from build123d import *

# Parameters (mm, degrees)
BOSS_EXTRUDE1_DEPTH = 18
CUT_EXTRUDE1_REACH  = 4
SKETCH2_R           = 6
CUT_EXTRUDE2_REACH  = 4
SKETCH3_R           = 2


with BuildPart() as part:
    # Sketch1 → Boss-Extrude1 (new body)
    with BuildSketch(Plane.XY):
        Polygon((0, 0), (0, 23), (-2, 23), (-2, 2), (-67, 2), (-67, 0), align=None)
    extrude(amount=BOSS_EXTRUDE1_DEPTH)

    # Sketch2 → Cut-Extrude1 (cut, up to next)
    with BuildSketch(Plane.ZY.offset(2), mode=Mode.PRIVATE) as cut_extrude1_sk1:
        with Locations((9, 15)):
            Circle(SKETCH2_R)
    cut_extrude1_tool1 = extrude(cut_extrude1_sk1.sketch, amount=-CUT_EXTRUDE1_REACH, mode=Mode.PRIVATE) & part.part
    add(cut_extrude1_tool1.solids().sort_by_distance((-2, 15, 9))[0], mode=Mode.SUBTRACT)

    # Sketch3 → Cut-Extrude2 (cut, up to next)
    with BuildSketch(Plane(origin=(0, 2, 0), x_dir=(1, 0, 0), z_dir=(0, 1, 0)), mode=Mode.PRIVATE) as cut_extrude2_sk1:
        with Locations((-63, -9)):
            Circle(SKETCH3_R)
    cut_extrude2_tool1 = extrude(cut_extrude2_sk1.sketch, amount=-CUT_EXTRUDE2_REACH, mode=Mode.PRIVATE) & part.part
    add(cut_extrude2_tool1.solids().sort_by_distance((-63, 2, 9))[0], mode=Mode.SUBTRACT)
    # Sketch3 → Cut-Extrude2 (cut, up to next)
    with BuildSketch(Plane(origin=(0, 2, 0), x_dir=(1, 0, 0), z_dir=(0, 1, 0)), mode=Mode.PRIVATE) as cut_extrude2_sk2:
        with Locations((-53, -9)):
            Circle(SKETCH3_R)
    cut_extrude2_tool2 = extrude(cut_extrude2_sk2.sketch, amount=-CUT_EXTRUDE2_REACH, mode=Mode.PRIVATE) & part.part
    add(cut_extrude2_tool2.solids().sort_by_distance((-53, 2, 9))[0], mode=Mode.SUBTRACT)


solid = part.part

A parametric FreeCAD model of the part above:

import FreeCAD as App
import Part
import Sketcher
Q = App.Units.Quantity

doc = App.newDocument("Part")
body = doc.addObject("PartDesign::Body", "Body")

sketch1 = body.newObject("Sketcher::SketchObject", "Sketch")
sketch1.AttachmentSupport = (doc.getObject("XY_Plane"), [""])
sketch1.MapMode = "FlatFace"
sketch1.addGeometry([
    Part.LineSegment(App.Vector(0, 0, 0), App.Vector(0, 23, 0)),
    Part.LineSegment(App.Vector(0, 23, 0), App.Vector(-2, 23, 0)),
    Part.LineSegment(App.Vector(-2, 23, 0), App.Vector(-2, 2, 0)),
    Part.LineSegment(App.Vector(-2, 2, 0), App.Vector(-67, 2, 0)),
    Part.LineSegment(App.Vector(-67, 2, 0), App.Vector(-67, 0, 0)),
    Part.LineSegment(App.Vector(-67, 0, 0), App.Vector(0, 0, 0)),
], False)
sketch1.addConstraint([
    Sketcher.Constraint("Coincident", 0, 2, 1, 1),
    Sketcher.Constraint("Coincident", 1, 2, 2, 1),
    Sketcher.Constraint("Coincident", 2, 2, 3, 1),
    Sketcher.Constraint("Coincident", 3, 2, 4, 1),
    Sketcher.Constraint("Coincident", 4, 2, 5, 1),
    Sketcher.Constraint("Coincident", 5, 2, 0, 1),
    Sketcher.Constraint("Vertical", 0),
    Sketcher.Constraint("Horizontal", 1),
    Sketcher.Constraint("Vertical", 2),
    Sketcher.Constraint("Horizontal", 3),
    Sketcher.Constraint("Vertical", 4),
    Sketcher.Constraint("Horizontal", 5),
    Sketcher.Constraint("Coincident", 5, 2, -1, 1),
    Sketcher.Constraint("Equal", 1, 4),
    Sketcher.Constraint("DistanceX", 1, 2, 1, 1, Q("2 mm")),
    Sketcher.Constraint("DistanceX", 3, 2, 3, 1, Q("65 mm")),
    Sketcher.Constraint("DistanceY", 0, 1, 0, 2, Q("23 mm")),
])
pad1 = body.newObject("PartDesign::Pad", "Pad")
pad1.Profile = sketch1
pad1.Length = 18

sketch2 = body.newObject("Sketcher::SketchObject", "Sketch001")
sketch2.AttachmentSupport = (doc.getObject("YZ_Plane"), [""])
sketch2.MapMode = "FlatFace"
sketch2.AttachmentOffset = App.Placement(App.Vector(0, 0, -2), App.Rotation())
sketch2.addGeometry(Part.Circle(App.Vector(15, 9, 0), App.Vector(0, 0, 1), 6), False)
sketch2.addConstraint([
    Sketcher.Constraint("Diameter", 0, Q("12 mm")),
    Sketcher.Constraint("DistanceX", -1, 1, 0, 3, Q("15 mm")),
    Sketcher.Constraint("DistanceY", -1, 1, 0, 3, Q("9 mm")),
])
pocket1 = body.newObject("PartDesign::Pocket", "Pocket")
pocket1.Profile = sketch2
pocket1.Type = "UpToFirst"
pocket1.Reversed = True

sketch3 = body.newObject("Sketcher::SketchObject", "Sketch002")
sketch3.AttachmentSupport = (doc.getObject("XZ_Plane"), [""])
sketch3.MapMode = "FlatFace"
sketch3.AttachmentOffset = App.Placement(App.Vector(0, 0, -2), App.Rotation())
sketch3.addGeometry(Part.Circle(App.Vector(-63, 9, 0), App.Vector(0, 0, 1), 2), False)
sketch3.addConstraint([
    Sketcher.Constraint("Diameter", 0, Q("4 mm")),
    Sketcher.Constraint("DistanceX", 0, 3, -1, 1, Q("63 mm")),
    Sketcher.Constraint("DistanceY", -1, 1, 0, 3, Q("9 mm")),
])
pocket2 = body.newObject("PartDesign::Pocket", "Pocket001")
pocket2.Profile = sketch3
pocket2.Type = "UpToFirst"
pocket2.Reversed = True

sketch4 = body.newObject("Sketcher::SketchObject", "Sketch003")
sketch4.AttachmentSupport = (doc.getObject("XZ_Plane"), [""])
sketch4.MapMode = "FlatFace"
sketch4.AttachmentOffset = App.Placement(App.Vector(0, 0, -2), App.Rotation())
sketch4.addGeometry(Part.Circle(App.Vector(-53, 9, 0), App.Vector(0, 0, 1), 2), False)
sketch4.addConstraint([
    Sketcher.Constraint("Diameter", 0, Q("4 mm")),
    Sketcher.Constraint("DistanceX", 0, 3, -1, 1, Q("53 mm")),
    Sketcher.Constraint("DistanceY", -1, 1, 0, 3, Q("9 mm")),
])
pocket3 = body.newObject("PartDesign::Pocket", "Pocket002")
pocket3.Profile = sketch4
pocket3.Type = "UpToFirst"
pocket3.Reversed = True

doc.recompute()
